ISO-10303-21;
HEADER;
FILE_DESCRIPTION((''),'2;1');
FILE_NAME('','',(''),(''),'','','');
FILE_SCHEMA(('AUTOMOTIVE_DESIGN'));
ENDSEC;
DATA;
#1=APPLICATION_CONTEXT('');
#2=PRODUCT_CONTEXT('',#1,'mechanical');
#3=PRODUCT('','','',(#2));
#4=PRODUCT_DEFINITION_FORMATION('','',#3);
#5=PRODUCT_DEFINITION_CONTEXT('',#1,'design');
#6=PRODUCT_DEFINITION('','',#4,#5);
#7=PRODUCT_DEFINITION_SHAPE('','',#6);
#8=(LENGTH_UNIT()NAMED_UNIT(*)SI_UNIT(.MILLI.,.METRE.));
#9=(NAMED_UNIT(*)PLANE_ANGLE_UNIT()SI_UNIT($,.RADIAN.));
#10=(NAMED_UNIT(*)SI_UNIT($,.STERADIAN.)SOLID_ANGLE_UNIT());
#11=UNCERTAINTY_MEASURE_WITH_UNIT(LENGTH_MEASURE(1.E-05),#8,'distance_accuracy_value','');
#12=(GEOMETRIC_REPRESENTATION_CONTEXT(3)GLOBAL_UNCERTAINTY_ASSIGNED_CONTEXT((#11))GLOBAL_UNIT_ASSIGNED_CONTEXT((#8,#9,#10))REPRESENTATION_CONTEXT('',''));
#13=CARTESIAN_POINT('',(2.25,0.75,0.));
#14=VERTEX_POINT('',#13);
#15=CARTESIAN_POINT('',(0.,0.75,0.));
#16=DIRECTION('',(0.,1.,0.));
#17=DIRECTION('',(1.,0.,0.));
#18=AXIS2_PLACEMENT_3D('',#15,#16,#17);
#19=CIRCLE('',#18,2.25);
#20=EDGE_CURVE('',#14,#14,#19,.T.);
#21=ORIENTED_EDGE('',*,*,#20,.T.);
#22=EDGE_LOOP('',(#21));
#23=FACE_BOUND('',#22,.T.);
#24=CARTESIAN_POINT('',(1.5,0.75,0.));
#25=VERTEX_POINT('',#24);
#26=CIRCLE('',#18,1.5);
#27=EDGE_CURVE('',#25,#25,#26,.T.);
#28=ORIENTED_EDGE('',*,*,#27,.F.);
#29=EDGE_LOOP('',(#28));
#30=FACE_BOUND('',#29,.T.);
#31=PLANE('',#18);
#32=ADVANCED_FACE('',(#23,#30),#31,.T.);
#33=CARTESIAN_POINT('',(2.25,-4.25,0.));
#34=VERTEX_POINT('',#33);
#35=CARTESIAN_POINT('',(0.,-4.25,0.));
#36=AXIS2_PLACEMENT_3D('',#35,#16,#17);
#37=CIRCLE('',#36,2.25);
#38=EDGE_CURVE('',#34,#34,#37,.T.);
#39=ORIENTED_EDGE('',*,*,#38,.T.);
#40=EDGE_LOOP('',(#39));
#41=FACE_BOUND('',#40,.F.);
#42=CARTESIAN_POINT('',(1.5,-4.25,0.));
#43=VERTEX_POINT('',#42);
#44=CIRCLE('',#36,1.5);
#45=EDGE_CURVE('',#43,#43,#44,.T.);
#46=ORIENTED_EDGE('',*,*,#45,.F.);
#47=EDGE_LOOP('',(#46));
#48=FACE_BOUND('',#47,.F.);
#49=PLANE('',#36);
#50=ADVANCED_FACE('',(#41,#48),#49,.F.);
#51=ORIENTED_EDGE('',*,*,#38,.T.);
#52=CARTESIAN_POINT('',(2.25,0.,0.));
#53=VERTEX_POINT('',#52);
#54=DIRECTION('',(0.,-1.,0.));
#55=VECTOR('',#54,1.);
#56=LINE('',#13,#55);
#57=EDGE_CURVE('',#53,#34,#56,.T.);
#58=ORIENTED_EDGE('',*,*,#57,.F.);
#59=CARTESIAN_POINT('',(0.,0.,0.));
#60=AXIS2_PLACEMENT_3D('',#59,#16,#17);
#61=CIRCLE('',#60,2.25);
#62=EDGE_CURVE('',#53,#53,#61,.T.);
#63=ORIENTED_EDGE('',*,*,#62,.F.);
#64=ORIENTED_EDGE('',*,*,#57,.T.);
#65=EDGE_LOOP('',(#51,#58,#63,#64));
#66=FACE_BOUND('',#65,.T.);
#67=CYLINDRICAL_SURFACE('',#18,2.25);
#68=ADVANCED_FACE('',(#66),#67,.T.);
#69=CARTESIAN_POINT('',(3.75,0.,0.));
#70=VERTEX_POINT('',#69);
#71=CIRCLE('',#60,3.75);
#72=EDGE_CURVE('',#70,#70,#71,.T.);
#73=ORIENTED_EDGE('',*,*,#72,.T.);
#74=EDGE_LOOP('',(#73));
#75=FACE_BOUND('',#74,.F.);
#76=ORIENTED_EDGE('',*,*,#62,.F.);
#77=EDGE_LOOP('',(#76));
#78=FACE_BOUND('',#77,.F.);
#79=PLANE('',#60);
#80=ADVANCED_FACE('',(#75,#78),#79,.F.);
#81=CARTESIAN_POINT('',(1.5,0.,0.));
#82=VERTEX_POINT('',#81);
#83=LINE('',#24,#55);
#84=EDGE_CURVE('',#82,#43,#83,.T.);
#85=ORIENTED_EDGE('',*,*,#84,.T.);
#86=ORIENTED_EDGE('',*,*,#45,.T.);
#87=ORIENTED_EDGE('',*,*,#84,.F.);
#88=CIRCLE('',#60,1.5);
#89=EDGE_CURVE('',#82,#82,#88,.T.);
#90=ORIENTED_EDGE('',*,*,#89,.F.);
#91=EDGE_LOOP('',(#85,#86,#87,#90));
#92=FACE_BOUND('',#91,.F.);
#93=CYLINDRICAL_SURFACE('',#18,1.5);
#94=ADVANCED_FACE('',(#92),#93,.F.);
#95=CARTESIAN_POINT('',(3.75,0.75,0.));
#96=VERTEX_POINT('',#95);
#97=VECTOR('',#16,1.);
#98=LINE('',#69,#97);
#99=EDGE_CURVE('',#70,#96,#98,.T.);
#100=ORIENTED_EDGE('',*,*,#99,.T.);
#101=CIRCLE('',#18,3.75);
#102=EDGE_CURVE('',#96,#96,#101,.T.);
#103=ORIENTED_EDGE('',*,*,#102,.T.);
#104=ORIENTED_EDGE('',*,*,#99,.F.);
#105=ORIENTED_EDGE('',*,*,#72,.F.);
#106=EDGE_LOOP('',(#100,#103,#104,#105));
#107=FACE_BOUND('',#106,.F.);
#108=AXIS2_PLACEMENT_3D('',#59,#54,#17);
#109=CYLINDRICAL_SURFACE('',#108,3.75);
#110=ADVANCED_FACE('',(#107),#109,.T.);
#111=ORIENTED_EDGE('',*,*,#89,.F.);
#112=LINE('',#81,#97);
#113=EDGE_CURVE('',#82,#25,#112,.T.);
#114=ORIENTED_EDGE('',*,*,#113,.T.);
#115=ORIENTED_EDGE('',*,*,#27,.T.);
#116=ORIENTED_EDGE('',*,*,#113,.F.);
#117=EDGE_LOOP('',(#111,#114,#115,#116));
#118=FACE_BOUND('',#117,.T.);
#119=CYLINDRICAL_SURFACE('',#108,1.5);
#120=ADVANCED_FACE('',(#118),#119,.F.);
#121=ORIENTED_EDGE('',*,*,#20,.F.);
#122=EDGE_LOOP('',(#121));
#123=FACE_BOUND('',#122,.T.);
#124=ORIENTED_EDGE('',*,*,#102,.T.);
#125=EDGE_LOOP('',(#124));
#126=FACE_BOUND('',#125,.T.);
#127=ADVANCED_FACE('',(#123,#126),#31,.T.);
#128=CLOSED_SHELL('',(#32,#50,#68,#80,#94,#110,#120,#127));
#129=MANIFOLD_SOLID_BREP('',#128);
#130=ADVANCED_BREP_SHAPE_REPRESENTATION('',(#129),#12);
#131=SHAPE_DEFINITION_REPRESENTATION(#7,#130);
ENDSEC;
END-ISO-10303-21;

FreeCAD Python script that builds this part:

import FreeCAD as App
import Part
import Sketcher

V = App.Vector
Q = App.Units.Quantity

doc = App.newDocument("Part")
body = doc.addObject("PartDesign::Body", "Body")

sketch1 = doc.addObject("Sketcher::SketchObject", "Sketch")
body.addObject(sketch1)
sketch1.AttachmentSupport = (doc.XZ_Plane, [""])
sketch1.MapMode = "FlatFace"
sketch1.addGeometry([
    Part.Circle(V(0, 0, 0), V(0, 0, 1), 3.8),
    Part.Circle(V(0, 0, 0), V(0, 0, 1), 1.5),
], False)
sketch1.addConstraint([
    Sketcher.Constraint("Coincident", 0, 3, -1, 1),
    Sketcher.Constraint("Coincident", 1, 3, -1, 1),
    Sketcher.Constraint("Diameter", 1, Q("3 mm")),
    Sketcher.Constraint("Diameter", 0, Q("7.5 mm")),
])
pad1 = doc.addObject("PartDesign::Pad", "Pad")
body.addObject(pad1)
pad1.Profile = sketch1
pad1.Length = 0.75
pad1.Reversed = True

sketch2 = doc.addObject("Sketcher::SketchObject", "Sketch001")
body.addObject(sketch2)
sketch2.AttachmentSupport = (doc.XZ_Plane, [""])
sketch2.MapMode = "FlatFace"
sketch2.AttachmentOffset = App.Placement(V(0, 0, -0.75), App.Rotation())
sketch2.addGeometry([
    Part.Circle(V(0, 0, 0), V(0, 0, 1), 2.2),
    Part.Circle(V(0, 0, 0), V(0, 0, 1), 1.5),
], False)
sketch2.addConstraint([
    Sketcher.Constraint("Coincident", 0, 3, -1, 1),
    Sketcher.Constraint("Coincident", 1, 3, -1, 1),
    Sketcher.Constraint("Diameter", 1, Q("3 mm")),
    Sketcher.Constraint("Diameter", 0, Q("4.5 mm")),
])
pad2 = doc.addObject("PartDesign::Pad", "Pad001")
body.addObject(pad2)
pad2.Profile = sketch2
pad2.Length = 5

doc.recompute()
